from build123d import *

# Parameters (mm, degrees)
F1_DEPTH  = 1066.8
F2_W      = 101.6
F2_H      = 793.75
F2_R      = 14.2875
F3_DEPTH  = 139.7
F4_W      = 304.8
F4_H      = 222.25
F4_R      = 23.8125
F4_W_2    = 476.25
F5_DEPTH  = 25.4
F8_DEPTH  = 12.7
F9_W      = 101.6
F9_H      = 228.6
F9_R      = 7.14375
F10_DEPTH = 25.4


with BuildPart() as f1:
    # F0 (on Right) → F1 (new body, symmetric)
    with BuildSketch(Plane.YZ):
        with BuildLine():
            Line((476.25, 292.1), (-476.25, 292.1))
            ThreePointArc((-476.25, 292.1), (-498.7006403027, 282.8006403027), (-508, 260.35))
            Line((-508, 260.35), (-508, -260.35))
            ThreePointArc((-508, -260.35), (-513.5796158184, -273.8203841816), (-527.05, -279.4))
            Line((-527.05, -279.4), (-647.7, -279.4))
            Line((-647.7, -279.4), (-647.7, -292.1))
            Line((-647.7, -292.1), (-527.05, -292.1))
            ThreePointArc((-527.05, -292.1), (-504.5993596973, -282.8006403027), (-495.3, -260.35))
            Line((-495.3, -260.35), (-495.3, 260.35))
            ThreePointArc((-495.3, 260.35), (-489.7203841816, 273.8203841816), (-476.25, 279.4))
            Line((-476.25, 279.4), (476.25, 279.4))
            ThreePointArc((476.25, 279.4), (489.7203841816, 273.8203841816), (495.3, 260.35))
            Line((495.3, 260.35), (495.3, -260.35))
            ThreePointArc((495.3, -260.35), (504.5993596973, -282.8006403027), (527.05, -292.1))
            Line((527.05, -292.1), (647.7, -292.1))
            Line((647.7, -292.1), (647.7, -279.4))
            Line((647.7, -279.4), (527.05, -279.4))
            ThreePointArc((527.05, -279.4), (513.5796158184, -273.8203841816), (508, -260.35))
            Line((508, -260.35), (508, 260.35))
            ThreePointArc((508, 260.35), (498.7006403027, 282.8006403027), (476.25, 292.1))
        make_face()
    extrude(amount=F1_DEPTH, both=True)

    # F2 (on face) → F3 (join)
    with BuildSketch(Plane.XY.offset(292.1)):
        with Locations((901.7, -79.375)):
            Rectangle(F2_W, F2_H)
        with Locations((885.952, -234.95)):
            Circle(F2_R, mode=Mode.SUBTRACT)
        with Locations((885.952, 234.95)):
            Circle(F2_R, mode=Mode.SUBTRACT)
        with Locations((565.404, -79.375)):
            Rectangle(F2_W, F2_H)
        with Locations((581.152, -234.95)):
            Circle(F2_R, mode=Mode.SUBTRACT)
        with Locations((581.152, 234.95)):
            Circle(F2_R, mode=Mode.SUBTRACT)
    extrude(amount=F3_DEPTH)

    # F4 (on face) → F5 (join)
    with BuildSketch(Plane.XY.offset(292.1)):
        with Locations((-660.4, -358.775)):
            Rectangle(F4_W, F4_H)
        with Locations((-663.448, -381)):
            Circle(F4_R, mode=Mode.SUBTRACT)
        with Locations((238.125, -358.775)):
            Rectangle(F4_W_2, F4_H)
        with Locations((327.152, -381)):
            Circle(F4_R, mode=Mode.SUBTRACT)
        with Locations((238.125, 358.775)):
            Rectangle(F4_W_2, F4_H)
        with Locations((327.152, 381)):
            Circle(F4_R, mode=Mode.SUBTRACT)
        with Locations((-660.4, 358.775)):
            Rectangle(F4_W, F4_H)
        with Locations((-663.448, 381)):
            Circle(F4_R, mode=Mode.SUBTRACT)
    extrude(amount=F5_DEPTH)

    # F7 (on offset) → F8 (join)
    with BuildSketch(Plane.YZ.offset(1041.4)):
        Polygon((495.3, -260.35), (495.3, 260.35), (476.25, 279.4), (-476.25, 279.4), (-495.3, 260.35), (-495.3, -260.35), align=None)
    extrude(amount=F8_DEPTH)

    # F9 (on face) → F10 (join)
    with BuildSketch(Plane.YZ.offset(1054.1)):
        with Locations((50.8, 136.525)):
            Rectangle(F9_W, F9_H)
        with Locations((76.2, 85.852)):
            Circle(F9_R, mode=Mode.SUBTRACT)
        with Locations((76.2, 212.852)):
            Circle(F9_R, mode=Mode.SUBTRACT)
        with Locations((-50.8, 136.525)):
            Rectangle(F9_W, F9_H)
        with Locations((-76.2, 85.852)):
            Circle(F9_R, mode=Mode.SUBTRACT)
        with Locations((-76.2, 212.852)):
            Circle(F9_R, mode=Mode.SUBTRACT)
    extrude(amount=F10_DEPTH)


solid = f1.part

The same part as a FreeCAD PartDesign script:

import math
import FreeCAD as App
import Part
import Sketcher
from FreeCAD import Vector
Q = App.Units.Quantity

doc = App.newDocument("Part")
body = doc.addObject("PartDesign::Body", "Body")

# Sketch on YZ plane
sketch1 = body.newObject("Sketcher::SketchObject", "Sketch")
sketch1.AttachmentSupport = (doc.getObject("YZ_Plane"), [""])
sketch1.MapMode = "FlatFace"
sketch1.addGeometry([
    Part.LineSegment(Vector(476.25, 292.1, 0), Vector(-476.25, 292.1, 0)),  # 0
    Part.ArcOfCircle(Part.Circle(Vector(-476.25, 260.35, 0), Vector(0, 0, 1), 31.75), math.radians(90), math.radians(180)),  # 1
    Part.LineSegment(Vector(-508, 260.35, 0), Vector(-508, -260.35, 0)),  # 2
    Part.ArcOfCircle(Part.Circle(Vector(-527.05, -260.35, 0), Vector(0, 0, 1), 19.05), math.radians(-90), math.radians(0)),  # 3
    Part.LineSegment(Vector(-527.05, -279.4, 0), Vector(-647.7, -279.4, 0)),  # 4
    Part.LineSegment(Vector(-647.7, -279.4, 0), Vector(-647.7, -292.1, 0)),  # 5
    Part.LineSegment(Vector(-647.7, -292.1, 0), Vector(-527.05, -292.1, 0)),  # 6
    Part.ArcOfCircle(Part.Circle(Vector(-527.05, -260.35, 0), Vector(0, 0, 1), 31.75), math.radians(-90), math.radians(0)),  # 7
    Part.LineSegment(Vector(-495.3, -260.35, 0), Vector(-495.3, 260.35, 0)),  # 8
    Part.ArcOfCircle(Part.Circle(Vector(-476.25, 260.35, 0), Vector(0, 0, 1), 19.05), math.radians(90), math.radians(180)),  # 9
    Part.LineSegment(Vector(-476.25, 279.4, 0), Vector(476.25, 279.4, 0)),  # 10
    Part.ArcOfCircle(Part.Circle(Vector(476.25, 260.35, 0), Vector(0, 0, 1), 19.05), math.radians(0), math.radians(90)),  # 11
    Part.LineSegment(Vector(495.3, 260.35, 0), Vector(495.3, -260.35, 0)),  # 12
    Part.ArcOfCircle(Part.Circle(Vector(527.05, -260.35, 0), Vector(0, 0, 1), 31.75), math.radians(180), math.radians(270)),  # 13
    Part.LineSegment(Vector(527.05, -292.1, 0), Vector(647.7, -292.1, 0)),  # 14
    Part.LineSegment(Vector(647.7, -292.1, 0), Vector(647.7, -279.4, 0)),  # 15
    Part.LineSegment(Vector(647.7, -279.4, 0), Vector(527.05, -279.4, 0)),  # 16
    Part.ArcOfCircle(Part.Circle(Vector(527.05, -260.35, 0), Vector(0, 0, 1), 19.05), math.radians(180), math.radians(270)),  # 17
    Part.LineSegment(Vector(508, -260.35, 0), Vector(508, 260.35, 0)),  # 18
    Part.ArcOfCircle(Part.Circle(Vector(476.25, 260.35, 0), Vector(0, 0, 1), 31.75), math.radians(0), math.radians(90)),  # 19
], False)
sketch1.addConstraint([
    Sketcher.Constraint("Tangent", 0, 2, 1, 1),
    Sketcher.Constraint("Tangent", 1, 2, 2, 1),
    Sketcher.Constraint("Tangent", 2, 2, 3, 2),
    Sketcher.Constraint("Tangent", 3, 1, 4, 1),
    Sketcher.Constraint("Coincident", 4, 2, 5, 1),
    Sketcher.Constraint("Coincident", 5, 2, 6, 1),
    Sketcher.Constraint("Tangent", 6, 2, 7, 1),
    Sketcher.Constraint("Tangent", 7, 2, 8, 1),
    Sketcher.Constraint("Tangent", 8, 2, 9, 2),
    Sketcher.Constraint("Tangent", 9, 1, 10, 1),
    Sketcher.Constraint("Tangent", 10, 2, 11, 2),
    Sketcher.Constraint("Tangent", 11, 1, 12, 1),
    Sketcher.Constraint("Tangent", 12, 2, 13, 1),
    Sketcher.Constraint("Tangent", 13, 2, 14, 1),
    Sketcher.Constraint("Coincident", 14, 2, 15, 1),
    Sketcher.Constraint("Coincident", 15, 2, 16, 1),
    Sketcher.Constraint("Tangent", 16, 2, 17, 2),
    Sketcher.Constraint("Tangent", 17, 1, 18, 1),
    Sketcher.Constraint("Tangent", 18, 2, 19, 1),
    Sketcher.Constraint("Tangent", 19, 2, 0, 1),
    Sketcher.Constraint("Horizontal", 0),
    Sketcher.Constraint("Vertical", 2),
    Sketcher.Constraint("Horizontal", 4),
    Sketcher.Constraint("Vertical", 5),
    Sketcher.Constraint("Horizontal", 6),
    Sketcher.Constraint("Vertical", 8),
    Sketcher.Constraint("Horizontal", 10),
    Sketcher.Constraint("Vertical", 12),
    Sketcher.Constraint("Horizontal", 14),
    Sketcher.Constraint("Vertical", 15),
    Sketcher.Constraint("Horizontal", 16),
    Sketcher.Constraint("Vertical", 18),
    Sketcher.Constraint("Coincident", 7, 3, 3, 3),
    Sketcher.Constraint("Coincident", 9, 3, 1, 3),
    Sketcher.Constraint("Coincident", 17, 3, 13, 3),
    Sketcher.Constraint("Coincident", 19, 3, 11, 3),
    Sketcher.Constraint("Equal", 1, 7),
    Sketcher.Constraint("Equal", 9, 11),
    Sketcher.Constraint("Equal", 7, 13),
    Sketcher.Constraint("Symmetric", 7, 2, 11, 1, -1, 1),
    Sketcher.Constraint("Symmetric", 5, 2, 14, 2, -2),
    Sketcher.Constraint("Radius", 1, Q("1.25 in")),
    Sketcher.Constraint("Radius", 3, Q("0.75 in")),
    Sketcher.Constraint("DistanceX", 0, 2, 0, 1, Q("37.5 in")),
    Sketcher.Constraint("DistanceY", 2, 2, 2, 1, Q("20.5 in")),
    Sketcher.Constraint("DistanceX", 12, 2, 14, 2, Q("6 in")),
])
pad1 = body.newObject("PartDesign::Pad", "Pad")
pad1.Profile = sketch1
pad1.Length = Q("84 in")
pad1.Midplane = True

# Sketch on XY plane
sketch2 = body.newObject("Sketcher::SketchObject", "Sketch001")
sketch2.AttachmentSupport = (doc.getObject("XY_Plane"), [""])
sketch2.MapMode = "FlatFace"
sketch2.AttachmentOffset = App.Placement(Vector(0, 0, 11.5 * 25.4), App.Rotation())
sketch2.addGeometry([
    Part.LineSegment(Vector(850.9, 317.5, 0), Vector(850.9, -476.25, 0)),  # 0
    Part.LineSegment(Vector(850.9, -476.25, 0), Vector(952.5, -476.25, 0)),  # 1
    Part.LineSegment(Vector(952.5, -476.25, 0), Vector(952.5, 317.5, 0)),  # 2
    Part.LineSegment(Vector(952.5, 317.5, 0), Vector(850.9, 317.5, 0)),  # 3
    Part.Circle(Vector(885.952, -234.95, 0), Vector(0, 0, 1), 14.2875),  # 4
    Part.Circle(Vector(885.952, 234.95, 0), Vector(0, 0, 1), 14.2875),  # 5
    Part.LineSegment(Vector(514.604, 317.5, 0), Vector(514.604, -476.25, 0)),  # 6
    Part.LineSegment(Vector(514.604, -476.25, 0), Vector(616.204, -476.25, 0)),  # 7
    Part.LineSegment(Vector(616.204, -476.25, 0), Vector(616.204, 317.5, 0)),  # 8
    Part.LineSegment(Vector(616.204, 317.5, 0), Vector(514.604, 317.5, 0)),  # 9
    Part.Circle(Vector(581.152, -234.95, 0), Vector(0, 0, 1), 14.2875),  # 10
    Part.Circle(Vector(581.152, 234.95, 0), Vector(0, 0, 1), 14.2875),  # 11
], False)
sketch2.addConstraint([
    Sketcher.Constraint("Coincident", 0, 2, 1, 1),
    Sketcher.Constraint("Coincident", 1, 2, 2, 1),
    Sketcher.Constraint("Coincident", 2, 2, 3, 1),
    Sketcher.Constraint("Coincident", 3, 2, 0, 1),
    Sketcher.Constraint("Coincident", 6, 2, 7, 1),
    Sketcher.Constraint("Coincident", 7, 2, 8, 1),
    Sketcher.Constraint("Coincident", 8, 2, 9, 1),
    Sketcher.Constraint("Coincident", 9, 2, 6, 1),
    Sketcher.Constraint("Vertical", 0),
    Sketcher.Constraint("Horizontal", 1),
    Sketcher.Constraint("Vertical", 2),
    Sketcher.Constraint("Horizontal", 3),
    Sketcher.Constraint("Vertical", 6),
    Sketcher.Constraint("Horizontal", 7),
    Sketcher.Constraint("Vertical", 8),
    Sketcher.Constraint("Horizontal", 9),
    Sketcher.Constraint("Equal", 4, 5),
    Sketcher.Constraint("Equal", 5, 10),
    Sketcher.Constraint("Equal", 10, 11),
    Sketcher.Constraint("Symmetric", 4, 3, 5, 3, -1),
    Sketcher.Constraint("Symmetric", 10, 3, 11, 3, -1),
    Sketcher.Constraint("Horizontal", 4, 3, 10, 3),
    Sketcher.Constraint("Horizontal", 1, 2, 6, 2),
    Sketcher.Constraint("Horizontal", 3, 2, 8, 2),
    Sketcher.Constraint("Equal", 3, 7),
    Sketcher.Constraint("DistanceX", 1, 1, 1, 2, Q("4 in")),
    Sketcher.Constraint("Diameter", 4, Q("1.125 in")),
    Sketcher.Constraint("DistanceX", 10, 3, 4, 3, Q("12 in")),
    Sketcher.Constraint("DistanceY", 0, 2, 5, 3, Q("28 in")),
    Sketcher.Constraint("DistanceY", 0, 2, 0, 1, Q("31.25 in")),
    Sketcher.Constraint("DistanceX", -1, 1, 0, 2, Q("33.5 in")),
    Sketcher.Constraint("DistanceY", -1, 1, 2, 2, Q("12.5 in")),
    Sketcher.Constraint("DistanceX", -1, 1, 4, 3, Q("34.88 in")),
    Sketcher.Constraint("DistanceX", -1, 1, 6, 2, Q("20.26 in")),
])
pad2 = body.newObject("PartDesign::Pad", "Pad001")
pad2.Profile = sketch2
pad2.Length = Q("5.5 in")

# Sketch on XY plane
sketch3 = body.newObject("Sketcher::SketchObject", "Sketch002")
sketch3.AttachmentSupport = (doc.getObject("XY_Plane"), [""])
sketch3.MapMode = "FlatFace"
sketch3.AttachmentOffset = App.Placement(Vector(0, 0, 11.5 * 25.4), App.Rotation())
sketch3.addGeometry([
    Part.LineSegment(Vector(-812.8, -247.65, 0), Vector(-812.8, -469.9, 0)),  # 0
    Part.LineSegment(Vector(-812.8, -469.9, 0), Vector(-508, -469.9, 0)),  # 1
    Part.LineSegment(Vector(-508, -469.9, 0), Vector(-508, -247.65, 0)),  # 2
    Part.LineSegment(Vector(-508, -247.65, 0), Vector(-812.8, -247.65, 0)),  # 3
    Part.Circle(Vector(-663.448, -381, 0), Vector(0, 0, 1), 23.8125),  # 4
    Part.LineSegment(Vector(0, -247.65, 0), Vector(0, -469.9, 0)),  # 5
    Part.LineSegment(Vector(0, -469.9, 0), Vector(476.25, -469.9, 0)),  # 6
    Part.LineSegment(Vector(476.25, -469.9, 0), Vector(476.25, -247.65, 0)),  # 7
    Part.LineSegment(Vector(476.25, -247.65, 0), Vector(0, -247.65, 0)),  # 8
    Part.Circle(Vector(327.152, -381, 0), Vector(0, 0, 1), 23.8125),  # 9
    Part.LineSegment(Vector(0, 469.9, 0), Vector(0, 247.65, 0)),  # 10
    Part.LineSegment(Vector(0, 247.65, 0), Vector(476.25, 247.65, 0)),  # 11
    Part.LineSegment(Vector(476.25, 247.65, 0), Vector(476.25, 469.9, 0)),  # 12
    Part.LineSegment(Vector(476.25, 469.9, 0), Vector(0, 469.9, 0)),  # 13
    Part.Circle(Vector(327.152, 381, 0), Vector(0, 0, 1), 23.8125),  # 14
    Part.LineSegment(Vector(-812.8, 469.9, 0), Vector(-812.8, 247.65, 0)),  # 15
    Part.LineSegment(Vector(-812.8, 247.65, 0), Vector(-508, 247.65, 0)),  # 16
    Part.LineSegment(Vector(-508, 247.65, 0), Vector(-508, 469.9, 0)),  # 17
    Part.LineSegment(Vector(-508, 469.9, 0), Vector(-812.8, 469.9, 0)),  # 18
    Part.Circle(Vector(-663.448, 381, 0), Vector(0, 0, 1), 23.8125),  # 19
], False)
sketch3.addConstraint([
    Sketcher.Constraint("Coincident", 0, 2, 1, 1),
    Sketcher.Constraint("Coincident", 1, 2, 2, 1),
    Sketcher.Constraint("Coincident", 2, 2, 3, 1),
    Sketcher.Constraint("Coincident", 3, 2, 0, 1),
    Sketcher.Constraint("Coincident", 5, 2, 6, 1),
    Sketcher.Constraint("Coincident", 6, 2, 7, 1),
    Sketcher.Constraint("Coincident", 7, 2, 8, 1),
    Sketcher.Constraint("Coincident", 8, 2, 5, 1),
    Sketcher.Constraint("Coincident", 10, 2, 11, 1),
    Sketcher.Constraint("Coincident", 11, 2, 12, 1),
    Sketcher.Constraint("Coincident", 12, 2, 13, 1),
    Sketcher.Constraint("Coincident", 13, 2, 10, 1),
    Sketcher.Constraint("Coincident", 15, 2, 16, 1),
    Sketcher.Constraint("Coincident", 16, 2, 17, 1),
    Sketcher.Constraint("Coincident", 17, 2, 18, 1),
    Sketcher.Constraint("Coincident", 18, 2, 15, 1),
    Sketcher.Constraint("Vertical", 0),
    Sketcher.Constraint("Horizontal", 1),
    Sketcher.Constraint("Vertical", 2),
    Sketcher.Constraint("Horizontal", 3),
    Sketcher.Constraint("Vertical", 5),
    Sketcher.Constraint("Horizontal", 6),
    Sketcher.Constraint("Vertical", 7),
    Sketcher.Constraint("Horizontal", 8),
    Sketcher.Constraint("Vertical", 10),
    Sketcher.Constraint("Horizontal", 11),
    Sketcher.Constraint("Vertical", 12),
    Sketcher.Constraint("Horizontal", 13),
    Sketcher.Constraint("Vertical", 15),
    Sketcher.Constraint("Horizontal", 16),
    Sketcher.Constraint("Vertical", 17),
    Sketcher.Constraint("Horizontal", 18),
    Sketcher.Constraint("Equal", 4, 9),
    Sketcher.Constraint("Equal", 9, 14),
    Sketcher.Constraint("Equal", 14, 19),
    Sketcher.Constraint("Symmetric", 8, 2, 10, 2, -1, 1),
    Sketcher.Constraint("Symmetric", 9, 3, 14, 3, -1),
    Sketcher.Constraint("Symmetric", 4, 3, 19, 3, -1),
    Sketcher.Constraint("Symmetric", 6, 2, 12, 2, -1),
    Sketcher.Constraint("Symmetric", 3, 2, 15, 2, -1),
    Sketcher.Constraint("Symmetric", 1, 2, 17, 2, -1),
    Sketcher.Constraint("PointOnObject", 5, 2, -2),
    Sketcher.Constraint("Horizontal", 4, 3, 9, 3),
    Sketcher.Constraint("Horizontal", 1, 2, 5, 2),
    Sketcher.Constraint("Horizontal", 3, 2, 7, 2),
    Sketcher.Constraint("DistanceX", 1, 1, 1, 2, Q("12 in")),
    Sketcher.Constraint("Diameter", 4, Q("1.875 in")),
    Sketcher.Constraint("DistanceY", 4, 3, -1, 1, Q("15 in")),
    Sketcher.Constraint("DistanceX", 0, 2, -1, 1, Q("32 in")),
    Sketcher.Constraint("DistanceX", 4, 3, 9, 3, Q("39 in")),
    Sketcher.Constraint("DistanceX", 6, 1, 6, 2, Q("18.75 in")),
    Sketcher.Constraint("DistanceY", 0, 2, 0, 1, Q("8.75 in")),
    Sketcher.Constraint("DistanceY", 0, 2, -1, 1, Q("18.5 in")),
    Sketcher.Constraint("DistanceX", 4, 3, -1, 1, Q("26.12 in")),
])
pad3 = body.newObject("PartDesign::Pad", "Pad002")
pad3.Profile = sketch3
pad3.Length = Q("1 in")

# Sketch on YZ plane
sketch4 = body.newObject("Sketcher::SketchObject", "Sketch003")
sketch4.AttachmentSupport = (doc.getObject("YZ_Plane"), [""])
sketch4.MapMode = "FlatFace"
sketch4.AttachmentOffset = App.Placement(Vector(0, 0, 41 * 25.4), App.Rotation())
sketch4.addGeometry([
    Part.LineSegment(Vector(495.3, -260.35, 0), Vector(495.3, 260.35, 0)),  # 0
    Part.LineSegment(Vector(495.3, 260.35, 0), Vector(476.25, 279.4, 0)),  # 1
    Part.LineSegment(Vector(476.25, 279.4, 0), Vector(-476.25, 279.4, 0)),  # 2
    Part.LineSegment(Vector(-476.25, 279.4, 0), Vector(-495.3, 260.35, 0)),  # 3
    Part.LineSegment(Vector(-495.3, 260.35, 0), Vector(-495.3, -260.35, 0)),  # 4
    Part.LineSegment(Vector(-495.3, -260.35, 0), Vector(495.3, -260.35, 0)),  # 5
], False)
sketch4.addConstraint([
    Sketcher.Constraint("Coincident", 0, 2, 1, 1),
    Sketcher.Constraint("Coincident", 1, 2, 2, 1),
    Sketcher.Constraint("Coincident", 2, 2, 3, 1),
    Sketcher.Constraint("Coincident", 3, 2, 4, 1),
    Sketcher.Constraint("Coincident", 4, 2, 5, 1),
    Sketcher.Constraint("Coincident", 5, 2, 0, 1),
    Sketcher.Constraint("Vertical", 0),
    Sketcher.Constraint("Horizontal", 2),
    Sketcher.Constraint("Vertical", 4),
    Sketcher.Constraint("Horizontal", 5),
    Sketcher.Constraint("Symmetric", 0, 2, 4, 2, -1, 1),
    Sketcher.Constraint("Perpendicular", 1, 3),
    Sketcher.Constraint("Horizontal", 0, 2, 3, 2),
    Sketcher.Constraint("Equal", 1, 3),
    Sketcher.Constraint("DistanceX", 5, 1, 5, 2, Q("39 in")),
    Sketcher.Constraint("DistanceX", 2, 2, 2, 1, Q("37.5 in")),
    Sketcher.Constraint("DistanceY", 0, 1, 0, 2, Q("20.5 in")),
])
pad4 = body.newObject("PartDesign::Pad", "Pad003")
pad4.Profile = sketch4
pad4.Length = Q("0.5 in")

# Sketch on YZ plane
sketch5 = body.newObject("Sketcher::SketchObject", "Sketch004")
sketch5.AttachmentSupport = (doc.getObject("YZ_Plane"), [""])
sketch5.MapMode = "FlatFace"
sketch5.AttachmentOffset = App.Placement(Vector(0, 0, 41.5 * 25.4), App.Rotation())
sketch5.addGeometry([
    Part.LineSegment(Vector(101.6, 22.225, 0), Vector(101.6, 250.825, 0)),  # 0
    Part.LineSegment(Vector(101.6, 250.825, 0), Vector(-101.6, 250.825, 0)),  # 1
    Part.LineSegment(Vector(-101.6, 250.825, 0), Vector(-101.6, 22.225, 0)),  # 2
    Part.LineSegment(Vector(-101.6, 22.225, 0), Vector(101.6, 22.225, 0)),  # 3
    Part.Circle(Vector(-76.2, 85.852, 0), Vector(0, 0, 1), 7.14375),  # 4
    Part.Circle(Vector(76.2, 85.852, 0), Vector(0, 0, 1), 7.14375),  # 5
    Part.Circle(Vector(-76.2, 212.852, 0), Vector(0, 0, 1), 7.14375),  # 6
    Part.Circle(Vector(76.2, 212.852, 0), Vector(0, 0, 1), 7.14375),  # 7
], False)
sketch5.addConstraint([
    Sketcher.Constraint("Coincident", 0, 2, 1, 1),
    Sketcher.Constraint("Coincident", 1, 2, 2, 1),
    Sketcher.Constraint("Coincident", 2, 2, 3, 1),
    Sketcher.Constraint("Coincident", 3, 2, 0, 1),
    Sketcher.Constraint("Vertical", 0),
    Sketcher.Constraint("Horizontal", 1),
    Sketcher.Constraint("Vertical", 2),
    Sketcher.Constraint("Horizontal", 3),
    Sketcher.Constraint("Equal", 4, 5),
    Sketcher.Constraint("Equal", 5, 6),
    Sketcher.Constraint("Equal", 6, 7),
    Sketcher.Constraint("Symmetric", 4, 3, 5, 3, -2),
    Sketcher.Constraint("Symmetric", 6, 3, 7, 3, -2),
    Sketcher.Constraint("Vertical", 4, 3, 6, 3),
    Sketcher.Constraint("DistanceX", 1, 2, 1, 1, Q("8 in")),
    Sketcher.Constraint("DistanceY", 0, 1, 0, 2, Q("9 in")),
    Sketcher.Constraint("Diameter", 4, Q("0.5625 in")),
    Sketcher.Constraint("DistanceX", 4, 3, -1, 1, Q("3 in")),
    Sketcher.Constraint("DistanceX", -1, 1, 0, 2, Q("4 in")),
    Sketcher.Constraint("DistanceY", 4, 3, 6, 3, Q("5 in")),
    Sketcher.Constraint("DistanceY", -1, 1, 4, 3, Q("3.38 in")),
    Sketcher.Constraint("DistanceY", -1, 1, 0, 2, Q("9.875 in")),
])
pad5 = body.newObject("PartDesign::Pad", "Pad004")
pad5.Profile = sketch5
pad5.Length = Q("1 in")

doc.recompute()
